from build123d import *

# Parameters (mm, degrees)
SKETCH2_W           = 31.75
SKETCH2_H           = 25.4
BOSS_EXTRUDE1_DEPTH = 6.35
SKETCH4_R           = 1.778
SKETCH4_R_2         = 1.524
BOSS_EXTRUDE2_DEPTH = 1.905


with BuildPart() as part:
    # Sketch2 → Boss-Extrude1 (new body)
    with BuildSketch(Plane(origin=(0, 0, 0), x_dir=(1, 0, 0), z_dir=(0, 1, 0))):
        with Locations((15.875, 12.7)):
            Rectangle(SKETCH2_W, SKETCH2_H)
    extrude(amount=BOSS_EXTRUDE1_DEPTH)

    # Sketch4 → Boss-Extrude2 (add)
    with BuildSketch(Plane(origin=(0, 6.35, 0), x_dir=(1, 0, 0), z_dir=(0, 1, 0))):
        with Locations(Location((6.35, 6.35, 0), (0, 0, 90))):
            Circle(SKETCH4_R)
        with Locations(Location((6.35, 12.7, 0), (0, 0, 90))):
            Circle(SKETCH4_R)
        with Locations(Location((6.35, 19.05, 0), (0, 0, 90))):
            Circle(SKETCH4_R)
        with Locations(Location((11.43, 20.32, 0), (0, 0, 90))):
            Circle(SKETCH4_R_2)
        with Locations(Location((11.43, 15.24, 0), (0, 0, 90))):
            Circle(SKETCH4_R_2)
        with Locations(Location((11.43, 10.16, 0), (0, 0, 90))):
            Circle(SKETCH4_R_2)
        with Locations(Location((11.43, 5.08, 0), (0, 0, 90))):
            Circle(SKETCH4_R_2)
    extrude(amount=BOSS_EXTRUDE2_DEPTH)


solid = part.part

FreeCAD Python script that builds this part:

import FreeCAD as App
import Part
import Sketcher
from FreeCAD import Vector
Q = App.Units.Quantity

doc = App.newDocument("Part")
params = doc.addObject("Spreadsheet::Sheet", "Params")
for row, (alias, value) in enumerate([
    ("sketch1_height", "1 in"),
    ("sketch1_width", "1.25 in"),
    ("pad1_length", "0.25 in"),
    ("sketch2_diameter", "0.14 in"),
    ("sketch2_diameter2", "0.12 in"),
    ("pad2_length", "0.075 in"),
], start=1):
    params.set(f"A{row}", alias)
    params.set(f"B{row}", "=" + value)
    params.setAlias(f"B{row}", alias)

body = doc.addObject("PartDesign::Body", "Body")

sketch1 = body.newObject("Sketcher::SketchObject", "Sketch")
sketch1.AttachmentSupport = (doc.getObject("XZ_Plane"), [""])
sketch1.MapMode = "FlatFace"
sketch1.addGeometry([
    Part.LineSegment(Vector(0, -25.4, 0), Vector(0, 0, 0)),
    Part.LineSegment(Vector(0, 0, 0), Vector(31.75, 0, 0)),
    Part.LineSegment(Vector(31.75, 0, 0), Vector(31.75, -25.4, 0)),
    Part.LineSegment(Vector(31.75, -25.4, 0), Vector(0, -25.4, 0)),
], False)
sketch1.addConstraint([
    Sketcher.Constraint("Coincident", 0, 2, 1, 1),
    Sketcher.Constraint("Coincident", 1, 2, 2, 1),
    Sketcher.Constraint("Coincident", 2, 2, 3, 1),
    Sketcher.Constraint("Coincident", 3, 2, 0, 1),
    Sketcher.Constraint("Vertical", 0),
    Sketcher.Constraint("Horizontal", 1),
    Sketcher.Constraint("Vertical", 2),
    Sketcher.Constraint("Horizontal", 3),
    Sketcher.Constraint("Coincident", 0, 2, -1, 1),
    Sketcher.Constraint("DistanceY", 0, 1, 0, 2, Q("1 in")),
    Sketcher.Constraint("DistanceX", 1, 1, 1, 2, Q("1.25 in")),
])
sketch1.setExpression("Constraints[9]", "Params.sketch1_height")
sketch1.setExpression("Constraints[10]", "Params.sketch1_width")
pad1 = body.newObject("PartDesign::Pad", "Pad")
pad1.Profile = sketch1
pad1.setExpression("Length", "Params.pad1_length")
pad1.Reversed = True

sketch2 = body.newObject("Sketcher::SketchObject", "Sketch001")
sketch2.AttachmentSupport = (doc.getObject("XZ_Plane"), [""])
sketch2.MapMode = "FlatFace"
sketch2.AttachmentOffset = App.Placement(Vector(0, 0, -0.25 * 25.4), App.Rotation())
sketch2.addGeometry([
    Part.Circle(Vector(6.35, -6.35, 0), Vector(0, 0, 1), 1.778),
    Part.Circle(Vector(6.35, -12.7, 0), Vector(0, 0, 1), 1.778),
    Part.Circle(Vector(6.35, -19.05, 0), Vector(0, 0, 1), 1.778),
    Part.Circle(Vector(11.43, -20.32, 0), Vector(0, 0, 1), 1.524),
    Part.Circle(Vector(11.43, -15.24, 0), Vector(0, 0, 1), 1.524),
    Part.Circle(Vector(11.43, -10.16, 0), Vector(0, 0, 1), 1.524),
    Part.Circle(Vector(11.43, -5.08, 0), Vector(0, 0, 1), 1.524),
], False)
sketch2.addConstraint([
    Sketcher.Constraint("Equal", 0, 1),
    Sketcher.Constraint("Equal", 1, 2),
    Sketcher.Constraint("Equal", 3, 4),
    Sketcher.Constraint("Equal", 4, 5),
    Sketcher.Constraint("Equal", 5, 6),
    Sketcher.Constraint("Vertical", 0, 3, 1, 3),
    Sketcher.Constraint("Vertical", 1, 3, 2, 3),
    Sketcher.Constraint("Vertical", 3, 3, 4, 3),
    Sketcher.Constraint("Vertical", 4, 3, 5, 3),
    Sketcher.Constraint("Vertical", 5, 3, 6, 3),
    Sketcher.Constraint("Diameter", 0, Q("0.14 in")),
    Sketcher.Constraint("Diameter", 3, Q("0.12 in")),
    Sketcher.Constraint("DistanceY", 1, 3, -1, 1, Q("0.5 in")),
    Sketcher.Constraint("DistanceY", 3, 3, -1, 1, Q("0.8 in")),
    Sketcher.Constraint("DistanceY", 4, 3, -1, 1, Q("0.6 in")),
    Sketcher.Constraint("DistanceY", 5, 3, -1, 1, Q("0.4 in")),
    Sketcher.Constraint("DistanceY", 6, 3, -1, 1, Q("0.2 in")),
    Sketcher.Constraint("DistanceY", 2, 3, 0, 3, Q("0.5 in")),
    Sketcher.Constraint("DistanceX", 2, 3, 3, 3, Q("0.2 in")),
    Sketcher.Constraint("DistanceX", -1, 1, 0, 3, Q("0.25 in")),
    Sketcher.Constraint("DistanceY", 0, 3, -1, 1, Q("0.25 in")),
])
sketch2.setExpression("Constraints[10]", "Params.sketch2_diameter")
sketch2.setExpression("Constraints[11]", "Params.sketch2_diameter2")
pad2 = body.newObject("PartDesign::Pad", "Pad001")
pad2.Profile = sketch2
pad2.setExpression("Length", "Params.pad2_length")
pad2.Reversed = True

doc.recompute()
